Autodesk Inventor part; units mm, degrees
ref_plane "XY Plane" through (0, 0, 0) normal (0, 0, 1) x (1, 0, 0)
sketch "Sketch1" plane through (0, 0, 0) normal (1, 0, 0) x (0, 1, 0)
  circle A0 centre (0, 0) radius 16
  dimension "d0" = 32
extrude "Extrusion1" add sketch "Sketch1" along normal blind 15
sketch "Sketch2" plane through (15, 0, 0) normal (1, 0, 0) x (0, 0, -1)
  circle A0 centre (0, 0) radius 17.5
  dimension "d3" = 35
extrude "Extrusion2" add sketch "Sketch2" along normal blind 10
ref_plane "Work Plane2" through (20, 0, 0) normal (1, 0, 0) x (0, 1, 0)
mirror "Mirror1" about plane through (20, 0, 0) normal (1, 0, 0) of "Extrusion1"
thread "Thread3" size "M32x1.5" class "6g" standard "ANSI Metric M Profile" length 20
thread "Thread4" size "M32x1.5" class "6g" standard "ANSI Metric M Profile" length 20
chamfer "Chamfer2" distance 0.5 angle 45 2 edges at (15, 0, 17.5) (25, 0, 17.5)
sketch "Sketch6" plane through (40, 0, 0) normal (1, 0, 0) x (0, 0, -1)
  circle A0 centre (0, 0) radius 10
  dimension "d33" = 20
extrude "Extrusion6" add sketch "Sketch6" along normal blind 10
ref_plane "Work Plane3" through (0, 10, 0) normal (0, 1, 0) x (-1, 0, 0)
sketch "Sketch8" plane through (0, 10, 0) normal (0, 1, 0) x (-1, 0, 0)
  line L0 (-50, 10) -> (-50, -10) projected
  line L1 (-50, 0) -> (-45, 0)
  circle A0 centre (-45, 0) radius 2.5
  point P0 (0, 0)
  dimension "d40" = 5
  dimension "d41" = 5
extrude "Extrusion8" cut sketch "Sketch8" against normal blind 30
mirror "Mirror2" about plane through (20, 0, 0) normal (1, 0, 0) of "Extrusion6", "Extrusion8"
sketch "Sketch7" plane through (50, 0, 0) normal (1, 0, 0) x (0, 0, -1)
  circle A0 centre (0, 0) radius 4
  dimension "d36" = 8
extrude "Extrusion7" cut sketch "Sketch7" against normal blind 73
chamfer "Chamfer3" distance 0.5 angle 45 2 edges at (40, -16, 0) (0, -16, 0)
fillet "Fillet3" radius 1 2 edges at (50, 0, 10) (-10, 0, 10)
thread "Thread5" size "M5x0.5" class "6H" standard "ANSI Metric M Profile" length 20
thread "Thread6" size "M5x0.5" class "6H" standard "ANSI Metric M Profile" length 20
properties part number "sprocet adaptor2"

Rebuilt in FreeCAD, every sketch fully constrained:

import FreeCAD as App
import Part
import Sketcher

V = App.Vector
Q = App.Units.Quantity


def edges_at(feature, points):
    """Names of the edges that pass closest to the given points."""
    edges = feature.Shape.Edges
    near = lambda p: min(range(len(edges)), key=lambda i: edges[i].distToShape(Part.Vertex(*p))[0])
    return sorted({f"Edge{near(p) + 1}" for p in points})

doc = App.newDocument("Part")
body = doc.addObject("PartDesign::Body", "Body")

sketch1 = doc.addObject("Sketcher::SketchObject", "Sketch")
body.addObject(sketch1)
sketch1.AttachmentSupport = (doc.YZ_Plane, [""])
sketch1.MapMode = "FlatFace"
sketch1.addGeometry(Part.Circle(V(0, 0, 0), V(0, 0, 1), 16), False)
sketch1.addConstraint(Sketcher.Constraint("Coincident", 0, 3, -1, 1))
sketch1.addConstraint(Sketcher.Constraint("Diameter", 0, Q("32 mm")))
pad1 = doc.addObject("PartDesign::Pad", "Pad")
body.addObject(pad1)
pad1.Profile = sketch1
pad1.Length = 15

sketch2 = doc.addObject("Sketcher::SketchObject", "Sketch001")
body.addObject(sketch2)
sketch2.AttachmentSupport = (doc.YZ_Plane, [""])
sketch2.MapMode = "FlatFace"
sketch2.AttachmentOffset = App.Placement(V(0, 0, 15), App.Rotation())
sketch2.addGeometry(Part.Circle(V(0, 0, 0), V(0, 0, 1), 18), False)
sketch2.addConstraint(Sketcher.Constraint("Coincident", 0, 3, -1, 1))
sketch2.addConstraint(Sketcher.Constraint("Diameter", 0, Q("35 mm")))
pad2 = doc.addObject("PartDesign::Pad", "Pad001")
body.addObject(pad2)
pad2.Profile = sketch2
pad2.Length = 10
doc.recompute()

datumplane = doc.addObject("PartDesign::Plane", "DatumPlane")
body.addObject(datumplane)
datumplane.AttachmentSupport = (doc.YZ_Plane, [""])
datumplane.MapMode = "FlatFace"
datumplane.AttachmentOffset = App.Placement(V(0, 0, 20), App.Rotation())
mirrored = doc.addObject("PartDesign::Mirrored", "Mirrored")
body.addObject(mirrored)
mirrored.Originals = [pad1]
mirrored.MirrorPlane = (datumplane, [""])
body.Tip = mirrored
doc.recompute()

chamfer = doc.addObject("PartDesign::Chamfer", "Chamfer")
body.addObject(chamfer)
chamfer.Base = (mirrored, edges_at(mirrored, [(15, 0, 17.5), (25, 0, 17.5)]))
chamfer.Size = 0.5

sketch3 = doc.addObject("Sketcher::SketchObject", "Sketch002")
body.addObject(sketch3)
sketch3.AttachmentSupport = (doc.YZ_Plane, [""])
sketch3.MapMode = "FlatFace"
sketch3.AttachmentOffset = App.Placement(V(0, 0, 40), App.Rotation())
sketch3.addGeometry(Part.Circle(V(0, 0, 0), V(0, 0, 1), 10), False)
sketch3.addConstraint(Sketcher.Constraint("Coincident", 0, 3, -1, 1))
sketch3.addConstraint(Sketcher.Constraint("Diameter", 0, Q("20 mm")))
pad3 = doc.addObject("PartDesign::Pad", "Pad002")
body.addObject(pad3)
pad3.Profile = sketch3
pad3.Length = 10

sketch4 = doc.addObject("Sketcher::SketchObject", "Sketch003")
body.addObject(sketch4)
sketch4.AttachmentSupport = (doc.XZ_Plane, [""])
sketch4.MapMode = "FlatFace"
sketch4.AttachmentOffset = App.Placement(V(0, 0, -10), App.Rotation())
sketch4.addGeometry(Part.Circle(V(45, 0, 0), V(0, 0, 1), 2.5), False)
sketch4.addConstraint(Sketcher.Constraint("PointOnObject", 0, 3, -1))
sketch4.addConstraint(Sketcher.Constraint("Diameter", 0, Q("5 mm")))
sketch4.addConstraint(Sketcher.Constraint("DistanceX", -1, 1, 0, 3, Q("45 mm")))
pocket1 = doc.addObject("PartDesign::Pocket", "Pocket")
body.addObject(pocket1)
pocket1.Profile = sketch4
pocket1.Length = 30
pocket1.Reversed = True
doc.recompute()

datumplane2 = doc.addObject("PartDesign::Plane", "DatumPlane001")
body.addObject(datumplane2)
datumplane2.AttachmentSupport = (doc.YZ_Plane, [""])
datumplane2.MapMode = "FlatFace"
datumplane2.AttachmentOffset = App.Placement(V(0, 0, 20), App.Rotation())
mirrored2 = doc.addObject("PartDesign::Mirrored", "Mirrored001")
body.addObject(mirrored2)
mirrored2.Originals = [pad3, pocket1]
mirrored2.MirrorPlane = (datumplane2, [""])
body.Tip = mirrored2

sketch5 = doc.addObject("Sketcher::SketchObject", "Sketch004")
body.addObject(sketch5)
sketch5.AttachmentSupport = (doc.YZ_Plane, [""])
sketch5.MapMode = "FlatFace"
sketch5.AttachmentOffset = App.Placement(V(0, 0, 50), App.Rotation())
sketch5.addGeometry(Part.Circle(V(0, 0, 0), V(0, 0, 1), 4), False)
sketch5.addConstraint(Sketcher.Constraint("Coincident", 0, 3, -1, 1))
sketch5.addConstraint(Sketcher.Constraint("Diameter", 0, Q("8 mm")))
pocket2 = doc.addObject("PartDesign::Pocket", "Pocket001")
body.addObject(pocket2)
pocket2.Profile = sketch5
pocket2.Length = 73
doc.recompute()

chamfer2 = doc.addObject("PartDesign::Chamfer", "Chamfer001")
body.addObject(chamfer2)
chamfer2.Base = (pocket2, edges_at(pocket2, [(40, -16, 0), (0, -16, 0)]))
chamfer2.Size = 0.5
doc.recompute()

fillet = doc.addObject("PartDesign::Fillet", "Fillet")
body.addObject(fillet)
fillet.Base = (chamfer2, edges_at(chamfer2, [(50, 0, 10), (-10, 0, 10)]))
fillet.Radius = 1

doc.recompute()
